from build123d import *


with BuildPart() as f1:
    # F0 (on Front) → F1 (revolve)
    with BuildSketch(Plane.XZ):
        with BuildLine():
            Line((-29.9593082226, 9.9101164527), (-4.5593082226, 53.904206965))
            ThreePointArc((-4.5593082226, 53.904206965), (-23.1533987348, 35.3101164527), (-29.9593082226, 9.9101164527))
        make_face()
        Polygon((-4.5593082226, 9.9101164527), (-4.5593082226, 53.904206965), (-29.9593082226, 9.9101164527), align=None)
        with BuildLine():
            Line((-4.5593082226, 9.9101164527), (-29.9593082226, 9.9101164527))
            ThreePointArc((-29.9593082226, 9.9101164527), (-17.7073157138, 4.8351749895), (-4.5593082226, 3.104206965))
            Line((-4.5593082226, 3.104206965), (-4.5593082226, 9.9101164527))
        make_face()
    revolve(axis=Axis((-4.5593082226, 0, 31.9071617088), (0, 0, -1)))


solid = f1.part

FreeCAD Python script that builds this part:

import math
import FreeCAD as App
import Part
import Sketcher

V = App.Vector
Q = App.Units.Quantity

doc = App.newDocument("Part")
params = doc.addObject("Spreadsheet::Sheet", "Params")
for row, (alias, value) in enumerate([
    ("sketch1_radius", "2 in"),
    ("revolution_angle", "360 deg"),
], start=1):
    params.set(f"A{row}", alias)
    params.set(f"B{row}", "=" + value)
    params.setAlias(f"B{row}", alias)

body = doc.addObject("PartDesign::Body", "Body")

# Sketch on XZ plane
sketch1 = body.newObject("Sketcher::SketchObject", "Sketch")
sketch1.AttachmentSupport = (doc.getObject("XZ_Plane"), [""])
sketch1.MapMode = "FlatFace"
sketch1.addGeometry([
    Part.ArcOfCircle(Part.Circle(V(21, 10, 0), V(0, 0, 1), 51), math.radians(120), math.radians(180)),
    Part.ArcOfCircle(Part.Circle(V(-5, 54, 0), V(0, 0, 1), 51), math.radians(-120), math.radians(-90)),
    Part.LineSegment(V(-5, 3, 0), V(-5, 54, 0)),
], False)
sketch1.addGeometry(Part.LineSegment(V(-5, 54, 0), V(-5, 3, 0)), True)  # axis
sketch1.addConstraint([
    Sketcher.Constraint("Coincident", 0, 2, 1, 1),
    Sketcher.Constraint("Coincident", 1, 2, 2, 1),
    Sketcher.Constraint("Coincident", 2, 2, 0, 1),
    Sketcher.Constraint("Vertical", 2),
    Sketcher.Constraint("Vertical", 3),
    Sketcher.Constraint("Coincident", 2, 2, 1, 3),
    Sketcher.Constraint("Coincident", 3, 1, 1, 3),
    Sketcher.Constraint("Equal", 0, 1),
    Sketcher.Constraint("Equal", 2, 3),
    Sketcher.Constraint("Radius", 0, Q("2 in")),
    Sketcher.Constraint("DistanceX", 1, 3, 0, 3, Q("1 in")),
    Sketcher.Constraint("DistanceX", -1, 1, 0, 3, 20.840692),
    Sketcher.Constraint("DistanceY", -1, 1, 0, 3, 9.910116),
])
sketch1.setExpression("Constraints[9]", "Params.sketch1_radius")
revolution = body.newObject("PartDesign::Revolution", "Revolution")
revolution.Profile = sketch1
revolution.ReferenceAxis = (sketch1, ["Axis0"])
revolution.setExpression("Angle", "Params.revolution_angle")

doc.recompute()
